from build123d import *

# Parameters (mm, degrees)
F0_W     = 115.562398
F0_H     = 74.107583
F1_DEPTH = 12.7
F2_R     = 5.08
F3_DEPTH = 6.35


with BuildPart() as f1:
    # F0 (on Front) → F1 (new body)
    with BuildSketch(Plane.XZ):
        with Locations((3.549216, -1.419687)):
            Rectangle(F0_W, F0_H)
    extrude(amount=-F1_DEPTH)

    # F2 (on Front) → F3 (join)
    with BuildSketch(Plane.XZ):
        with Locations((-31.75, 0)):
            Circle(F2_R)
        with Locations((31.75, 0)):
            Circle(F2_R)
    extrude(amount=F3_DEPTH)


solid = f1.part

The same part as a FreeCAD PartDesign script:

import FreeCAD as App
import Part
import Sketcher

V = App.Vector
Q = App.Units.Quantity

doc = App.newDocument("Part")
body = doc.addObject("PartDesign::Body", "Body")

sketch1 = body.newObject("Sketcher::SketchObject", "Sketch")
sketch1.AttachmentSupport = (doc.getObject("XZ_Plane"), [""])
sketch1.MapMode = "FlatFace"
sketch1.addGeometry(Part.LineSegment(V(-54, 36, 0), V(-54, -38, 0)), False)
sketch1.addGeometry(Part.LineSegment(V(-54, -38, 0), V(61, -38, 0)), False)
sketch1.addGeometry(Part.LineSegment(V(61, -38, 0), V(61, 36, 0)), False)
sketch1.addGeometry(Part.LineSegment(V(61, 36, 0), V(-54, 36, 0)), False)
sketch1.addConstraint(Sketcher.Constraint("Coincident", 0, 2, 1, 1))
sketch1.addConstraint(Sketcher.Constraint("Coincident", 1, 2, 2, 1))
sketch1.addConstraint(Sketcher.Constraint("Coincident", 2, 2, 3, 1))
sketch1.addConstraint(Sketcher.Constraint("Coincident", 3, 2, 0, 1))
sketch1.addConstraint(Sketcher.Constraint("Vertical", 0))
sketch1.addConstraint(Sketcher.Constraint("Horizontal", 1))
sketch1.addConstraint(Sketcher.Constraint("Vertical", 2))
sketch1.addConstraint(Sketcher.Constraint("Horizontal", 3))
sketch1.addConstraint(Sketcher.Constraint("DistanceX", 1, 1, 1, 2, Q("115.562398 mm")))
sketch1.addConstraint(Sketcher.Constraint("DistanceY", 0, 2, 0, 1, Q("74.107583 mm")))
sketch1.addConstraint(Sketcher.Constraint("DistanceY", 0, 2, -1, 1, Q("38.473478 mm")))
sketch1.addConstraint(Sketcher.Constraint("DistanceX", 0, 2, -1, 1, Q("54.231983 mm")))
pad1 = body.newObject("PartDesign::Pad", "Pad")
pad1.Profile = sketch1
pad1.Length = Q("0.5 in")
pad1.Reversed = True

sketch2 = body.newObject("Sketcher::SketchObject", "Sketch001")
sketch2.AttachmentSupport = (doc.getObject("XZ_Plane"), [""])
sketch2.MapMode = "FlatFace"
sketch2.addGeometry(Part.Circle(V(-32, 0, 0), V(0, 0, 1), 5), False)
sketch2.addGeometry(Part.Circle(V(32, 0, 0), V(0, 0, 1), 5), False)
sketch2.addConstraint(Sketcher.Constraint("Equal", 0, 1))
sketch2.addConstraint(Sketcher.Constraint("Symmetric", 0, 3, 1, 3, -1, 1))
sketch2.addConstraint(Sketcher.Constraint("PointOnObject", 0, 3, -1))
sketch2.addConstraint(Sketcher.Constraint("Diameter", 0, Q("0.4 in")))
sketch2.addConstraint(Sketcher.Constraint("DistanceX", 0, 3, 1, 3, Q("2.5 in")))
pad2 = body.newObject("PartDesign::Pad", "Pad001")
pad2.Profile = sketch2
pad2.Length = Q("0.25 in")

doc.recompute()
